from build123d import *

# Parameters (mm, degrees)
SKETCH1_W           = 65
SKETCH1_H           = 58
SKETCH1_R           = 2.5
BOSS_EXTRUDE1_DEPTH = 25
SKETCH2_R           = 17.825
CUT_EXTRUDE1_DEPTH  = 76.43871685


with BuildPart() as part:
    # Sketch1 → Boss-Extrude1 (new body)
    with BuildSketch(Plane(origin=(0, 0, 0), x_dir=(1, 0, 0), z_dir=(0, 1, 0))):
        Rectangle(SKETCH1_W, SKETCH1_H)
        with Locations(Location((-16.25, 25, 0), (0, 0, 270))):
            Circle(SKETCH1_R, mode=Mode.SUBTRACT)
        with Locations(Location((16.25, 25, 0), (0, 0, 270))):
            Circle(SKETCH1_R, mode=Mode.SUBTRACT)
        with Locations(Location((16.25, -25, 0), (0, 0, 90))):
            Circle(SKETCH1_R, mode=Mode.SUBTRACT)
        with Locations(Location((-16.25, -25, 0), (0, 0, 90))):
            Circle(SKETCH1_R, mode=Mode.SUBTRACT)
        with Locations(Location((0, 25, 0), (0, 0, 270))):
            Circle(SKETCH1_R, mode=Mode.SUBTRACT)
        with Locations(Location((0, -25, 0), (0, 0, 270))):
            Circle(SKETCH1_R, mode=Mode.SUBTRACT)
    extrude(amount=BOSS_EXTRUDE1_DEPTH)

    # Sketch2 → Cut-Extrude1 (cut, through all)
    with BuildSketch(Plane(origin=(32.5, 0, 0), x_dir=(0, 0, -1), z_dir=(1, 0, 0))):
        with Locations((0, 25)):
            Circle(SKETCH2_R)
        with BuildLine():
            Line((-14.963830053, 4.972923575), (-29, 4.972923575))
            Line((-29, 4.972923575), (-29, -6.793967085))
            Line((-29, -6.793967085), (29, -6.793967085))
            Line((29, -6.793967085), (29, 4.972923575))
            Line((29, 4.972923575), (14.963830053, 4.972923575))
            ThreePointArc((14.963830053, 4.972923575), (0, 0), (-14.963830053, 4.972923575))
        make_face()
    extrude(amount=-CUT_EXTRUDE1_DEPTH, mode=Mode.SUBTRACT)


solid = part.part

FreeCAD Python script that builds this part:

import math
import FreeCAD as App
import Part
import Sketcher

V = App.Vector

doc = App.newDocument("Part")
body = doc.addObject("PartDesign::Body", "Body")

sketch1 = body.newObject("Sketcher::SketchObject", "Sketch")
sketch1.AttachmentSupport = (doc.getObject("XZ_Plane"), [""])
sketch1.MapMode = "FlatFace"
sketch1.addGeometry([
    Part.LineSegment(V(-32.5, -29, 0), V(-32.5, 29, 0)),
    Part.LineSegment(V(-32.5, 29, 0), V(32.5, 29, 0)),
    Part.LineSegment(V(32.5, 29, 0), V(32.5, -29, 0)),
    Part.LineSegment(V(32.5, -29, 0), V(-32.5, -29, 0)),
    Part.Circle(V(-16.2, 25, 0), V(0, 0, 1), 2.5),
    Part.Circle(V(0, 25, 0), V(0, 0, 1), 2.5),
    Part.Circle(V(16.2, 25, 0), V(0, 0, 1), 2.5),
    Part.Circle(V(-16.2, -25, 0), V(0, 0, 1), 2.5),
    Part.Circle(V(0, -25, 0), V(0, 0, 1), 2.5),
    Part.Circle(V(16.2, -25, 0), V(0, 0, 1), 2.5),
], False)
sketch1.addConstraint([
    Sketcher.Constraint("Coincident", 0, 2, 1, 1),
    Sketcher.Constraint("Coincident", 1, 2, 2, 1),
    Sketcher.Constraint("Coincident", 2, 2, 3, 1),
    Sketcher.Constraint("Coincident", 3, 2, 0, 1),
    Sketcher.Constraint("Vertical", 0),
    Sketcher.Constraint("Horizontal", 1),
    Sketcher.Constraint("Vertical", 2),
    Sketcher.Constraint("Horizontal", 3),
    Sketcher.Constraint("Equal", 4, 5),
    Sketcher.Constraint("Equal", 5, 6),
    Sketcher.Constraint("Equal", 6, 7),
    Sketcher.Constraint("Equal", 7, 8),
    Sketcher.Constraint("Equal", 8, 9),
    Sketcher.Constraint("Symmetric", 6, 3, 7, 3, -1, 1),
    Sketcher.Constraint("Symmetric", 5, 3, 8, 3, -1, 1),
    Sketcher.Constraint("Symmetric", 4, 3, 9, 3, -1, 1),
    Sketcher.Constraint("Symmetric", 0, 2, 2, 2, -1, 1),
    Sketcher.Constraint("Symmetric", 4, 3, 6, 3, -2),
    Sketcher.Constraint("PointOnObject", 5, 3, -2),
    Sketcher.Constraint("Horizontal", 4, 3, 5, 3),
    Sketcher.Constraint("Diameter", 4, 5.0),
    Sketcher.Constraint("DistanceX", 1, 1, 1, 2, 65.0),
    Sketcher.Constraint("DistanceY", 0, 1, 0, 2, 58.0),
    Sketcher.Constraint("DistanceY", -1, 1, 4, 3, 25.0),
    Sketcher.Constraint("DistanceX", 4, 3, 6, 3, 32.5),
])
pad1 = body.newObject("PartDesign::Pad", "Pad")
pad1.Profile = sketch1
pad1.Length = 25
pad1.Reversed = True

sketch2 = body.newObject("Sketcher::SketchObject", "Sketch001")
sketch2.AttachmentSupport = (doc.getObject("YZ_Plane"), [""])
sketch2.MapMode = "FlatFace"
sketch2.AttachmentOffset = App.Placement(V(0, 0, 32.5), App.Rotation())
sketch2.addGeometry([
    Part.Circle(V(25, 0, 0), V(0, 0, 1), 18),
    Part.LineSegment(V(5, 15, 0), V(5, 29, 0)),
    Part.LineSegment(V(5, 29, 0), V(-7, 29, 0)),
    Part.LineSegment(V(-7, 29, 0), V(-7, -29, 0)),
    Part.LineSegment(V(-7, -29, 0), V(5, -29, 0)),
    Part.LineSegment(V(5, -29, 0), V(5, -15, 0)),
    Part.ArcOfCircle(Part.Circle(V(25, 0, 0), V(0, 0, 1), 25), math.radians(143), math.radians(217)),
], False)
sketch2.addConstraint([
    Sketcher.Constraint("Coincident", 1, 2, 2, 1),
    Sketcher.Constraint("Coincident", 2, 2, 3, 1),
    Sketcher.Constraint("Coincident", 3, 2, 4, 1),
    Sketcher.Constraint("Coincident", 4, 2, 5, 1),
    Sketcher.Constraint("Coincident", 5, 2, 6, 2),
    Sketcher.Constraint("Coincident", 6, 1, 1, 1),
    Sketcher.Constraint("Vertical", 1),
    Sketcher.Constraint("Horizontal", 2),
    Sketcher.Constraint("Vertical", 3),
    Sketcher.Constraint("Horizontal", 4),
    Sketcher.Constraint("Vertical", 5),
    Sketcher.Constraint("Coincident", 6, 3, 0, 3),
    Sketcher.Constraint("Symmetric", 1, 2, 4, 2, -1),
    Sketcher.Constraint("PointOnObject", 0, 3, -1),
    Sketcher.Constraint("Radius", 6, 25.0),
    Sketcher.Constraint("Diameter", 0, 35.65),
    Sketcher.Constraint("DistanceY", 3, 2, 3, 1, 58.0),
    Sketcher.Constraint("DistanceX", -1, 1, 0, 3, 25.0),
    Sketcher.Constraint("DistanceX", 2, 2, 2, 1, 11.766891),
    Sketcher.Constraint("DistanceY", 1, 1, 1, 2, 14.03617),
])
pocket1 = body.newObject("PartDesign::Pocket", "Pocket")
pocket1.Profile = sketch2
pocket1.Type = "ThroughAll"

doc.recompute()
